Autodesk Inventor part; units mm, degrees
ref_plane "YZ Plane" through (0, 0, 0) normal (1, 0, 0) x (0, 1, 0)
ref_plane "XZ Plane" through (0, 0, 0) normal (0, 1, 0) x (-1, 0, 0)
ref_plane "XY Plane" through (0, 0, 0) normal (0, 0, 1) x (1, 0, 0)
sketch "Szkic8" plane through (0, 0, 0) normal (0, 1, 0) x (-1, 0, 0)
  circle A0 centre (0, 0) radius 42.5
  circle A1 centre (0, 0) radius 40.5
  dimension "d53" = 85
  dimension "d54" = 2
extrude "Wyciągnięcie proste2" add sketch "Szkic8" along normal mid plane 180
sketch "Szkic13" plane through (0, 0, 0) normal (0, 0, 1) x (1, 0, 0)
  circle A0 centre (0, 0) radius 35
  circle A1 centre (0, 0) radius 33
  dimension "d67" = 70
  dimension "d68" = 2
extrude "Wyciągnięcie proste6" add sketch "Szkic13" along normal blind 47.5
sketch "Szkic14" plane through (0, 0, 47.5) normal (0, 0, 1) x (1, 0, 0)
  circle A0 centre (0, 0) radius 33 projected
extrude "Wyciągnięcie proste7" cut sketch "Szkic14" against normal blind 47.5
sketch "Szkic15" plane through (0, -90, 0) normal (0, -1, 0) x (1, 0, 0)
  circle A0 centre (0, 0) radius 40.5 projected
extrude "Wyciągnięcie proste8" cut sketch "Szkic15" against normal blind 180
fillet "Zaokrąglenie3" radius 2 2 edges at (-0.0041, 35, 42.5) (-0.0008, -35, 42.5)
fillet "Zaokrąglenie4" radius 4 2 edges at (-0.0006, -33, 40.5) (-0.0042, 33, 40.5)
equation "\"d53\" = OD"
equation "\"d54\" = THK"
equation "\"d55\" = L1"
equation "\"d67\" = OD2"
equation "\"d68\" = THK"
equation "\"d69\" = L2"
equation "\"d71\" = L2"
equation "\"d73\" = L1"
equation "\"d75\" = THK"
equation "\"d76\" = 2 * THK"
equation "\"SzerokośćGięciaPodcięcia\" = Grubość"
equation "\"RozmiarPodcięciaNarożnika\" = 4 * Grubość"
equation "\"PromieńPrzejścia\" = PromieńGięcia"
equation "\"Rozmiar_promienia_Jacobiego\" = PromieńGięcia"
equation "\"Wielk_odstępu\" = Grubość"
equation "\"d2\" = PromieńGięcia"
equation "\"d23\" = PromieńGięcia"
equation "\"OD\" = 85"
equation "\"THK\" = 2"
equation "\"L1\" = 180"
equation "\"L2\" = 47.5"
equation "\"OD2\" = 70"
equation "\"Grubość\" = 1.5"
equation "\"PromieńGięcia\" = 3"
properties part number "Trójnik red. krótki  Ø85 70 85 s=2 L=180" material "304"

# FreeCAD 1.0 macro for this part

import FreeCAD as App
import Part
import Sketcher
Q = App.Units.Quantity


def edges_at(feature, points):
    """Names of the edges that pass closest to the given points."""
    edges = feature.Shape.Edges
    near = lambda p: min(range(len(edges)), key=lambda i: edges[i].distToShape(Part.Vertex(*p))[0])
    return sorted({f"Edge{near(p) + 1}" for p in points})

doc = App.newDocument("Part")
params = doc.addObject("Spreadsheet::Sheet", "Params")
for row, (alias, value) in enumerate([
    ("sketch1_diameter", "85 mm"),
    ("sketch1_diameter2", "81 mm"),
    ("pad1_length", "180 mm"),
    ("sketch2_diameter", "70 mm"),
    ("sketch2_diameter2", "66 mm"),
    ("pad2_length", "47.5 mm"),
    ("sketch3_diameter", "66 mm"),
    ("pocket1_length", "47.5 mm"),
    ("sketch4_diameter", "81 mm"),
    ("pocket2_length", "180 mm"),
    ("fillet_radius", "2 mm"),
    ("fillet2_radius", "4 mm"),
], start=1):
    params.set(f"A{row}", alias)
    params.set(f"B{row}", "=" + value)
    params.setAlias(f"B{row}", alias)

body = doc.addObject("PartDesign::Body", "Body")

sketch1 = doc.addObject("Sketcher::SketchObject", "Sketch")
body.addObject(sketch1)
sketch1.AttachmentSupport = (doc.XZ_Plane, [""])
sketch1.MapMode = "FlatFace"
sketch1.addGeometry([
    Part.Circle(App.Vector(0, 0, 0), App.Vector(0, 0, 1), 42),
    Part.Circle(App.Vector(0, 0, 0), App.Vector(0, 0, 1), 40),
], False)
sketch1.addConstraint([
    Sketcher.Constraint("Coincident", 0, 3, -1, 1),
    Sketcher.Constraint("Coincident", 1, 3, -1, 1),
    Sketcher.Constraint("Diameter", 0, Q("85 mm")),
    Sketcher.Constraint("Diameter", 1, Q("81 mm")),
])
sketch1.setExpression("Constraints[2]", "Params.sketch1_diameter")
sketch1.setExpression("Constraints[3]", "Params.sketch1_diameter2")
pad1 = doc.addObject("PartDesign::Pad", "Pad")
body.addObject(pad1)
pad1.Profile = sketch1
pad1.setExpression("Length", "Params.pad1_length")
pad1.Midplane = True

sketch2 = doc.addObject("Sketcher::SketchObject", "Sketch001")
body.addObject(sketch2)
sketch2.AttachmentSupport = (doc.XY_Plane, [""])
sketch2.MapMode = "FlatFace"
sketch2.addGeometry([
    Part.Circle(App.Vector(0, 0, 0), App.Vector(0, 0, 1), 35),
    Part.Circle(App.Vector(0, 0, 0), App.Vector(0, 0, 1), 33),
], False)
sketch2.addConstraint([
    Sketcher.Constraint("Coincident", 0, 3, -1, 1),
    Sketcher.Constraint("Coincident", 1, 3, -1, 1),
    Sketcher.Constraint("Diameter", 0, Q("70 mm")),
    Sketcher.Constraint("Diameter", 1, Q("66 mm")),
])
sketch2.setExpression("Constraints[2]", "Params.sketch2_diameter")
sketch2.setExpression("Constraints[3]", "Params.sketch2_diameter2")
pad2 = doc.addObject("PartDesign::Pad", "Pad001")
body.addObject(pad2)
pad2.Profile = sketch2
pad2.setExpression("Length", "Params.pad2_length")

sketch3 = doc.addObject("Sketcher::SketchObject", "Sketch002")
body.addObject(sketch3)
sketch3.AttachmentSupport = (doc.XY_Plane, [""])
sketch3.MapMode = "FlatFace"
sketch3.AttachmentOffset = App.Placement(App.Vector(0, 0, 47.5), App.Rotation())
sketch3.addGeometry(Part.Circle(App.Vector(0, 0, 0), App.Vector(0, 0, 1), 33), False)
sketch3.addConstraint([
    Sketcher.Constraint("Coincident", 0, 3, -1, 1),
    Sketcher.Constraint("Diameter", 0, Q("66 mm")),
])
sketch3.setExpression("Constraints[1]", "Params.sketch3_diameter")
pocket1 = doc.addObject("PartDesign::Pocket", "Pocket")
body.addObject(pocket1)
pocket1.Profile = sketch3
pocket1.setExpression("Length", "Params.pocket1_length")

sketch4 = doc.addObject("Sketcher::SketchObject", "Sketch003")
body.addObject(sketch4)
sketch4.AttachmentSupport = (doc.XZ_Plane, [""])
sketch4.MapMode = "FlatFace"
sketch4.AttachmentOffset = App.Placement(App.Vector(0, 0, 90), App.Rotation())
sketch4.addGeometry(Part.Circle(App.Vector(0, 0, 0), App.Vector(0, 0, 1), 40), False)
sketch4.addConstraint([
    Sketcher.Constraint("Coincident", 0, 3, -1, 1),
    Sketcher.Constraint("Diameter", 0, Q("81 mm")),
])
sketch4.setExpression("Constraints[1]", "Params.sketch4_diameter")
pocket2 = doc.addObject("PartDesign::Pocket", "Pocket001")
body.addObject(pocket2)
pocket2.Profile = sketch4
pocket2.setExpression("Length", "Params.pocket2_length")
doc.recompute()

fillet = doc.addObject("PartDesign::Fillet", "Fillet")
body.addObject(fillet)
fillet.Base = (pocket2, edges_at(pocket2, [(-0.004, 35, 42.5), (-0.001, -35, 42.5)]))
fillet.setExpression("Radius", "Params.fillet_radius")
doc.recompute()

fillet2 = doc.addObject("PartDesign::Fillet", "Fillet001")
body.addObject(fillet2)
fillet2.Base = (fillet, edges_at(fillet, [(-0.001, -33, 40.5), (-0.004, 33, 40.5)]))
fillet2.setExpression("Radius", "Params.fillet2_radius")

doc.recompute()
